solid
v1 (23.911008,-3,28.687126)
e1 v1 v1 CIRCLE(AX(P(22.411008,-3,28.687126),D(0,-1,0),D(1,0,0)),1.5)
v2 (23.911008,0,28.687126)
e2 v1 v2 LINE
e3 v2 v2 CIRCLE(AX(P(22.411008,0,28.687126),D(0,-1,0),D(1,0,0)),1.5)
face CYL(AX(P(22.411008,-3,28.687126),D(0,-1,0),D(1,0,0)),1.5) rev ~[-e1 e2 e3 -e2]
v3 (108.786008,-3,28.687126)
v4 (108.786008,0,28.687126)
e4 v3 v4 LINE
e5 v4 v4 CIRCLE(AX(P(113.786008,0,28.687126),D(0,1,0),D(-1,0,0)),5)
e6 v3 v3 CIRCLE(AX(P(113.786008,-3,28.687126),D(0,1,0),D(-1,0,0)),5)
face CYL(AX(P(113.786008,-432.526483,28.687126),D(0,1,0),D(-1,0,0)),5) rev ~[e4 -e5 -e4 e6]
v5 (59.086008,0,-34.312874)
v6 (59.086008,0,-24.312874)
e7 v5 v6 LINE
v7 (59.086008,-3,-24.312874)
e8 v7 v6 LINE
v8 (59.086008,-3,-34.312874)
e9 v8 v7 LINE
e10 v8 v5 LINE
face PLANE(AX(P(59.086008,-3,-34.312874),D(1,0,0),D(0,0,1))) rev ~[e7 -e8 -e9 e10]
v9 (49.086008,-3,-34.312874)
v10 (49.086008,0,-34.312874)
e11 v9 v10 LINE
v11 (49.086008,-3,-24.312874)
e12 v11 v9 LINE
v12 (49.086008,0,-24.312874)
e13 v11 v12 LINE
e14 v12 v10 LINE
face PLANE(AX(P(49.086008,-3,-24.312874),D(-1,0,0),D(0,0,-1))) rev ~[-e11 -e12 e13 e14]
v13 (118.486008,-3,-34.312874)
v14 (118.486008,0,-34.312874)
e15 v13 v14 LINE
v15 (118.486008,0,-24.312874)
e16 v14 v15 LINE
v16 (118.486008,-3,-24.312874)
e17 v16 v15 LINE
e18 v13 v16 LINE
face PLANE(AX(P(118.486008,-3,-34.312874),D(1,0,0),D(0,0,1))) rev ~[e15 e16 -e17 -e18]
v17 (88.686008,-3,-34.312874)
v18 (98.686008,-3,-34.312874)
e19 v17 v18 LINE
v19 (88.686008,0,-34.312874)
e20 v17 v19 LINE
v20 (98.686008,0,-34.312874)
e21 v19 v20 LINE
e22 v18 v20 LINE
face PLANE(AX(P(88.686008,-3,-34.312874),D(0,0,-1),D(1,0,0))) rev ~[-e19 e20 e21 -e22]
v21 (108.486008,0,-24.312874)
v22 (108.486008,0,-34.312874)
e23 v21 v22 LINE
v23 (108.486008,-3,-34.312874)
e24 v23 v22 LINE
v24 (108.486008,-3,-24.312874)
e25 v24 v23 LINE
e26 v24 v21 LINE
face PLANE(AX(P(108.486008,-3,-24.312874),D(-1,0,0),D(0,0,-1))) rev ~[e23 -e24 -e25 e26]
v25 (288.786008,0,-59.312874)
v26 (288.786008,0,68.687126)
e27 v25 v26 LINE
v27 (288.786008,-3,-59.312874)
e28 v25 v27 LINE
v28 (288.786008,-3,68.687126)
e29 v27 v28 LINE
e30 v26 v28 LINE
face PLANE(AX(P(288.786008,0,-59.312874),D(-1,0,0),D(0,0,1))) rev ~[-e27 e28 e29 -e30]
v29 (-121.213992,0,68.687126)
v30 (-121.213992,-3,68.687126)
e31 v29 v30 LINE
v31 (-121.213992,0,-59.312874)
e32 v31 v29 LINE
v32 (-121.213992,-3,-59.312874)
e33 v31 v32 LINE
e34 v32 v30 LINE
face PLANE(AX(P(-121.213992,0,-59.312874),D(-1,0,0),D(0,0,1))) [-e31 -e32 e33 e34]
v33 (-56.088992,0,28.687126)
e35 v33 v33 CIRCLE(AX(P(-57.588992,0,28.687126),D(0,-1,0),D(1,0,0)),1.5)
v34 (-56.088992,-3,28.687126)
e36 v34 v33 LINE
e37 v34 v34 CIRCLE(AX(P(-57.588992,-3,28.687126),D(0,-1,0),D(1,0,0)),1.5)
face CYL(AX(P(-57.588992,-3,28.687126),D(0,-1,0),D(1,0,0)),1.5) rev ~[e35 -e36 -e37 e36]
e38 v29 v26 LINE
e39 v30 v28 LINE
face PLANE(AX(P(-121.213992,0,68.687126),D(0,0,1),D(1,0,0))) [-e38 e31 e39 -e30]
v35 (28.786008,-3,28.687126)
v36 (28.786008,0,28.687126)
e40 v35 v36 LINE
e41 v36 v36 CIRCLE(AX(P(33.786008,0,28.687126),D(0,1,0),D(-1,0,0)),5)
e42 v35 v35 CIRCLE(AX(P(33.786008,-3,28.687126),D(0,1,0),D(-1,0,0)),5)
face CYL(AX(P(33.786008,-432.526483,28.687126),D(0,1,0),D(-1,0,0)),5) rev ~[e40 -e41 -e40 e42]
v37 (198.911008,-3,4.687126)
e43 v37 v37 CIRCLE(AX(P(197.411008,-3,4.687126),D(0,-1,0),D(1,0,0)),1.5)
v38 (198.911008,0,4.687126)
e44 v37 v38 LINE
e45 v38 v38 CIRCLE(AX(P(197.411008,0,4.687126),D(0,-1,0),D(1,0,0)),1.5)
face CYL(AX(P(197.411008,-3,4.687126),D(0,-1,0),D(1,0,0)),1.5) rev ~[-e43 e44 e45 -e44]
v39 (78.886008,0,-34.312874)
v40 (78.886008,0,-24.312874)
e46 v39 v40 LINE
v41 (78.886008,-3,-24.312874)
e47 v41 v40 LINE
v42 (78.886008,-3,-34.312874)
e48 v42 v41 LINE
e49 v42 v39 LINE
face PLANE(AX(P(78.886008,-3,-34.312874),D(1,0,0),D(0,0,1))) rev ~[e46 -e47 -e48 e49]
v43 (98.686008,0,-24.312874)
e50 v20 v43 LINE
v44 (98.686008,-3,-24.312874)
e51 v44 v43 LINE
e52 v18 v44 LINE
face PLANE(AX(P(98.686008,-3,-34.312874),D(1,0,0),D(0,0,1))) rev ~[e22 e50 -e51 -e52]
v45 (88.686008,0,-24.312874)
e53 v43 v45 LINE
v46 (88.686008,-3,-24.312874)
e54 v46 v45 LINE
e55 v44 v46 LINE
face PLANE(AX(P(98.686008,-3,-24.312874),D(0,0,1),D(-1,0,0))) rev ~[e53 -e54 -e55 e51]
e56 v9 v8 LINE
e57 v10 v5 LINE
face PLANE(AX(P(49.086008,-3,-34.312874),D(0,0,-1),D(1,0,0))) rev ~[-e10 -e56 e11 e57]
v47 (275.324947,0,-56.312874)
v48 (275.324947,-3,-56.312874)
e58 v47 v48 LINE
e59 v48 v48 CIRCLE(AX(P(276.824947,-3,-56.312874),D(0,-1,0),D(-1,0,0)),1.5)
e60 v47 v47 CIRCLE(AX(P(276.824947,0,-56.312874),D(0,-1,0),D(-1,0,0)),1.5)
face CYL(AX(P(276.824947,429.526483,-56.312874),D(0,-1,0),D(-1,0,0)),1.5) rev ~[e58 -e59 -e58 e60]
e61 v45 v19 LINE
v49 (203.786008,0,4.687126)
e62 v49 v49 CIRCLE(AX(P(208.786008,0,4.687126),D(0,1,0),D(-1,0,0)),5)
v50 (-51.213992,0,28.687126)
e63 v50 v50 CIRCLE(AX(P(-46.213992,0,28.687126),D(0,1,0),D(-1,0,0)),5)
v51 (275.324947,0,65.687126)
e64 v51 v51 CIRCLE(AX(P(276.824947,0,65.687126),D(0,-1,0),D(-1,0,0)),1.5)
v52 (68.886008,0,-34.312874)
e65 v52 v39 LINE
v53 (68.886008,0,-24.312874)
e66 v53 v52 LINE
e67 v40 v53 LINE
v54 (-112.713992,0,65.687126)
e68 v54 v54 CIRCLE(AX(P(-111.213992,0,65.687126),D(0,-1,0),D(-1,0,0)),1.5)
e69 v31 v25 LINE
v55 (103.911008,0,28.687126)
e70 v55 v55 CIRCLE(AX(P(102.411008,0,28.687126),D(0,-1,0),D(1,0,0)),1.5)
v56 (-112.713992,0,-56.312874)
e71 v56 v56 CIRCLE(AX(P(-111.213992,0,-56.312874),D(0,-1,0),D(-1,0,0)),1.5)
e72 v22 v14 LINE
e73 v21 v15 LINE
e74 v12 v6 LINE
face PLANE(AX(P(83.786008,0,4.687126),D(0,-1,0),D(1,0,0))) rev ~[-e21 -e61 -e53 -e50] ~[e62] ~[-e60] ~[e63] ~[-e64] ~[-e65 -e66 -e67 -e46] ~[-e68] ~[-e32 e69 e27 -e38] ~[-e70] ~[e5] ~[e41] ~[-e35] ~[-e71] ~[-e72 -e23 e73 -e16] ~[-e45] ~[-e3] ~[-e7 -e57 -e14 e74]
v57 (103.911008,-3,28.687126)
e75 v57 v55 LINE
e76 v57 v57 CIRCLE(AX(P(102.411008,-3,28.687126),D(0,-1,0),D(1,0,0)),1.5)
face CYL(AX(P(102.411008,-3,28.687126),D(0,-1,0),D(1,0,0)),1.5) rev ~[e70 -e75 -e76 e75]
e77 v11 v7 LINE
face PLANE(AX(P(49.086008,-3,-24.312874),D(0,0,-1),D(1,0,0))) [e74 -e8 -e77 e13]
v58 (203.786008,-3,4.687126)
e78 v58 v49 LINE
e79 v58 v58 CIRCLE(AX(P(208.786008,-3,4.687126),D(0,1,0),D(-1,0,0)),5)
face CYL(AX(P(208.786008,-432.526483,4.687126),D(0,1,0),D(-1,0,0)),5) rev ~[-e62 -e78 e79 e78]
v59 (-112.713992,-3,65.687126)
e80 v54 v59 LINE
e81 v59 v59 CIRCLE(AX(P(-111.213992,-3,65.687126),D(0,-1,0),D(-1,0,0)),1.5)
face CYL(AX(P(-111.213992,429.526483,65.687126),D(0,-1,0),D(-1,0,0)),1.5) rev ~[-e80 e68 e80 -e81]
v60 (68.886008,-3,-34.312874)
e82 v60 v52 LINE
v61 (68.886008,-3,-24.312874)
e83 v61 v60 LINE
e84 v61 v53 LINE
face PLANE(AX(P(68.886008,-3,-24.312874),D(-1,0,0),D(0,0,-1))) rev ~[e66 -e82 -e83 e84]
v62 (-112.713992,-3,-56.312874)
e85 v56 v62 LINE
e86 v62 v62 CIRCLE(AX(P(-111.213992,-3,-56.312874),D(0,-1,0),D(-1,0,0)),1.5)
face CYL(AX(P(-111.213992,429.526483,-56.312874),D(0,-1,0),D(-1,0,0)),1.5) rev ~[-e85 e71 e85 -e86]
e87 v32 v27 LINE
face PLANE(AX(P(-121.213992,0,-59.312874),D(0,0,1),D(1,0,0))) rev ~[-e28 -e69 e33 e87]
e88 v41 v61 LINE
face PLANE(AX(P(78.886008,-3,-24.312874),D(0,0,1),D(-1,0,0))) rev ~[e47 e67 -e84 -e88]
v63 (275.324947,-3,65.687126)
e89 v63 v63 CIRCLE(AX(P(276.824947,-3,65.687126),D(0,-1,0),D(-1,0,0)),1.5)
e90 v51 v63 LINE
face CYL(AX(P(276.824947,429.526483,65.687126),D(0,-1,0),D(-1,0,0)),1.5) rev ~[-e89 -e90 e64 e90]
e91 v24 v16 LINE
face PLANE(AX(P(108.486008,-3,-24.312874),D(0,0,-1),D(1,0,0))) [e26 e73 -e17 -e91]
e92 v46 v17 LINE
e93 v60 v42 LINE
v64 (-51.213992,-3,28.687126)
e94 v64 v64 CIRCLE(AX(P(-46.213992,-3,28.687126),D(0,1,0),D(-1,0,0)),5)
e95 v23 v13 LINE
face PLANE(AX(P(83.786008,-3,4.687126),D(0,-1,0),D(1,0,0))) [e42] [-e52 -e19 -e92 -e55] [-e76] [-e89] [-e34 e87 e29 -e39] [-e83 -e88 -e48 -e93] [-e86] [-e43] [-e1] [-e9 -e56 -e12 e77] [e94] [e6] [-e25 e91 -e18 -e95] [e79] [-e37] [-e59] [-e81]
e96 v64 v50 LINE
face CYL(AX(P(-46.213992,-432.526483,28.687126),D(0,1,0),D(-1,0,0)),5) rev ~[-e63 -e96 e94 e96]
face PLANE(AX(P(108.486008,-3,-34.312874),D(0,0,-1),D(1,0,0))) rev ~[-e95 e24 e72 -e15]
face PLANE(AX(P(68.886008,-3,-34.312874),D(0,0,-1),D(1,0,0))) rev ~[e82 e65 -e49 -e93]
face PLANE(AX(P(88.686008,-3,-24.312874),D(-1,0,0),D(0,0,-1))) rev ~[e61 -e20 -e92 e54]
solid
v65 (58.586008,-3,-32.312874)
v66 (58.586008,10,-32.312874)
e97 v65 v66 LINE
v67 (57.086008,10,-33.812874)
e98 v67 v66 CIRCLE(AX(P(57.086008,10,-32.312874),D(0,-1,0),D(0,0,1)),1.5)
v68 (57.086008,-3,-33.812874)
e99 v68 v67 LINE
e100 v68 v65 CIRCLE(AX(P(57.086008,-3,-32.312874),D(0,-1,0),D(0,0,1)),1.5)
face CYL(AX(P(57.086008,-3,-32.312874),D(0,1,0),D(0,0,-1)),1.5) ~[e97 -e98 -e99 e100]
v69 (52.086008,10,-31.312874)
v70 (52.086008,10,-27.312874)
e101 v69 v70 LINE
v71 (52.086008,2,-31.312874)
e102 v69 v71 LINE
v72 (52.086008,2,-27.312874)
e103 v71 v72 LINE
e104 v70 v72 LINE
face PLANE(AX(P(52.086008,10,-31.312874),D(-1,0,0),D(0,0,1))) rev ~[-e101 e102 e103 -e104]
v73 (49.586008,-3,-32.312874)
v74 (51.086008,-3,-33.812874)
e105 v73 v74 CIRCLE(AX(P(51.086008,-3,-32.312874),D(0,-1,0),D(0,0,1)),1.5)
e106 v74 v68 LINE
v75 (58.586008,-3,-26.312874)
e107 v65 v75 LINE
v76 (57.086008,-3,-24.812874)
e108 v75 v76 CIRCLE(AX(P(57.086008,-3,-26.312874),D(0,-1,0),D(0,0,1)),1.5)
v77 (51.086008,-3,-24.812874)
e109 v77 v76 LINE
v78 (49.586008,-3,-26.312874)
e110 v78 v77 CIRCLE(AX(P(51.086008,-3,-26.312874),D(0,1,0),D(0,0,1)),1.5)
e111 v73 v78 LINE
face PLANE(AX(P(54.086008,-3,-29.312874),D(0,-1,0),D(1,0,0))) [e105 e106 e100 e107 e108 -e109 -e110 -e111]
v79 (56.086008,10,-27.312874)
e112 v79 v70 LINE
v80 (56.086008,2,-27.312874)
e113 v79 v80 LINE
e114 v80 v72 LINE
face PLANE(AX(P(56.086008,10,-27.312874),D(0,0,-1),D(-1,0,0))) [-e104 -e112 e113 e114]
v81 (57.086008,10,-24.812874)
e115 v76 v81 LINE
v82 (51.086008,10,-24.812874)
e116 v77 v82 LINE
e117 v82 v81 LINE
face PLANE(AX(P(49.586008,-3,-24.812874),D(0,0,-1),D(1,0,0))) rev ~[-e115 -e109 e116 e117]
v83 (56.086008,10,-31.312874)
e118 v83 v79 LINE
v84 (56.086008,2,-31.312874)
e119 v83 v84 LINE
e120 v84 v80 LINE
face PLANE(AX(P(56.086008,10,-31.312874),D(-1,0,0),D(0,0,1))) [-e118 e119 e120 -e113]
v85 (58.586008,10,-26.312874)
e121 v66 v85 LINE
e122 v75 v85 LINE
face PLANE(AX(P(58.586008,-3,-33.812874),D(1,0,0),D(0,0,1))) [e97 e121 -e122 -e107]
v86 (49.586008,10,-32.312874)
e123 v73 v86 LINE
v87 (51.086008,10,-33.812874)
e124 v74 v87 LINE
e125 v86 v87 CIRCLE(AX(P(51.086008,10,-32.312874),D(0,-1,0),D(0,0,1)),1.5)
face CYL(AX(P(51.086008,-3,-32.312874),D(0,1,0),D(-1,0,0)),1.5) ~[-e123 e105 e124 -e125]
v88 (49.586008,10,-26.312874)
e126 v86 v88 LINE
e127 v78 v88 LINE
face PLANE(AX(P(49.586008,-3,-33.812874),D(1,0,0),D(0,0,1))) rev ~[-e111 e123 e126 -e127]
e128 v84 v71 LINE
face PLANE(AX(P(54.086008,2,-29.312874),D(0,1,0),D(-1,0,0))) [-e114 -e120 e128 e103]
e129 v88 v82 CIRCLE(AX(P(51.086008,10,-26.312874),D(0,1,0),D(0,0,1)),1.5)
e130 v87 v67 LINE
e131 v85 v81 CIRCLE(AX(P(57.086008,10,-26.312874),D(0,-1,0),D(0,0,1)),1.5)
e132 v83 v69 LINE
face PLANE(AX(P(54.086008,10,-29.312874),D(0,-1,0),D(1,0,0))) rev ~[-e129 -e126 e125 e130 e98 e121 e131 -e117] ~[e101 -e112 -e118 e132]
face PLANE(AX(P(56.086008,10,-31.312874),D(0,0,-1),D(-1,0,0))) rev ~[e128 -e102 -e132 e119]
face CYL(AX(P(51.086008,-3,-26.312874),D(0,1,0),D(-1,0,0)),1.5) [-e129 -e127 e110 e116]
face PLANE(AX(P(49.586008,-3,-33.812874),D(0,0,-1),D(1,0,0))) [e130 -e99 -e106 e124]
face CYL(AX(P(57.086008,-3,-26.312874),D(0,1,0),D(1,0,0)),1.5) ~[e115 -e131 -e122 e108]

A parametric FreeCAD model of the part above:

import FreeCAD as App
import Part
import Sketcher

V = App.Vector


def edges_at(feature, points):
    """Names of the edges that pass closest to the given points."""
    edges = feature.Shape.Edges
    near = lambda p: min(range(len(edges)), key=lambda i: edges[i].distToShape(Part.Vertex(*p))[0])
    return sorted({f"Edge{near(p) + 1}" for p in points})


def add_polygon(sketch, points):
    """Adds a closed chain of lines whose ends are joined by coincident constraints."""
    first, n = sketch.GeometryCount, len(points)
    for a, b in zip(points, points[1:] + points[:1]):
        sketch.addGeometry(Part.LineSegment(App.Vector(*a, 0), App.Vector(*b, 0)), False)
    for i in range(n):
        sketch.addConstraint(Sketcher.Constraint("Coincident", first + i, 2, first + (i + 1) % n, 1))

doc = App.newDocument("Part")
body = doc.addObject("PartDesign::Body", "Body")

# Sketch on XZ plane
sketch1 = body.newObject("Sketcher::SketchObject", "Sketch")
sketch1.AttachmentSupport = (doc.getObject("XZ_Plane"), [""])
sketch1.MapMode = "FlatFace"
add_polygon(sketch1, [(-121, 69), (-121, -59), (289, -59), (289, 69)])  # lines 0-3
sketch1.addConstraint([
    Sketcher.Constraint("Vertical", 0),
    Sketcher.Constraint("Horizontal", 1),
    Sketcher.Constraint("Vertical", 2),
    Sketcher.Constraint("Horizontal", 3),
    Sketcher.Constraint("DistanceX", 1, 1, 1, 2, 410.0),
    Sketcher.Constraint("DistanceY", 0, 2, 0, 1, 128.0),
    Sketcher.Constraint("DistanceX", 0, 2, -1, 1, 121.213992),
    Sketcher.Constraint("DistanceY", 0, 2, -1, 1, 59.312874),
])
pad1 = body.newObject("PartDesign::Pad", "Pad")
pad1.Profile = sketch1
pad1.Length = 3

# Sketch on XZ plane
sketch2 = body.newObject("Sketcher::SketchObject", "Sketch001")
sketch2.AttachmentSupport = (doc.getObject("XZ_Plane"), [""])
sketch2.MapMode = "FlatFace"
sketch2.addGeometry([
    Part.Circle(V(-111.2, 65.7, 0), V(0, 0, 1), 1.5),
    Part.Circle(V(276.8, 65.7, 0), V(0, 0, 1), 1.5),
    Part.Circle(V(276.8, -56.3, 0), V(0, 0, 1), 1.5),
    Part.Circle(V(-111.2, -56.3, 0), V(0, 0, 1), 1.5),
], False)
sketch2.addConstraint([
    Sketcher.Constraint("Equal", 0, 1),
    Sketcher.Constraint("Equal", 1, 2),
    Sketcher.Constraint("Equal", 2, 3),
    Sketcher.Constraint("Horizontal", 0, 3, 1, 3),
    Sketcher.Constraint("Horizontal", 2, 3, 3, 3),
    Sketcher.Constraint("Vertical", 1, 3, 2, 3),
    Sketcher.Constraint("Vertical", 0, 3, 3, 3),
    Sketcher.Constraint("Diameter", 0, 3.0),
    Sketcher.Constraint("DistanceY", 2, 3, 1, 3, 122.0),
    Sketcher.Constraint("DistanceX", 0, 3, -1, 1, 111.213992),
    Sketcher.Constraint("DistanceX", 0, 3, 1, 3, 388.038939),
    Sketcher.Constraint("DistanceY", -1, 1, 0, 3, 65.687126),
])
doc.recompute()
hole = body.newObject("PartDesign::Hole", "Hole")
hole.Profile = sketch2
hole.ThreadType = "None"
hole.Diameter = 3
hole.DepthType = "ThroughAll"
hole.Reversed = True

# Sketch on XZ plane
sketch3 = body.newObject("Sketcher::SketchObject", "Sketch002")
sketch3.AttachmentSupport = (doc.getObject("XZ_Plane"), [""])
sketch3.MapMode = "FlatFace"
sketch3.AttachmentOffset = App.Placement(V(0, 0, 3), App.Rotation())
sketch3.addGeometry([
    Part.Circle(V(-46, 29, 0), V(0, 0, 1), 5),
    Part.Circle(V(34, 29, 0), V(0, 0, 1), 5),
    Part.Circle(V(114, 29, 0), V(0, 0, 1), 5),
    Part.Circle(V(209, 5, 0), V(0, 0, 1), 5),
], False)
sketch3.addConstraint([
    Sketcher.Constraint("Equal", 0, 1),
    Sketcher.Constraint("Equal", 1, 2),
    Sketcher.Constraint("Equal", 2, 3),
    Sketcher.Constraint("Horizontal", 0, 3, 1, 3),
    Sketcher.Constraint("Horizontal", 1, 3, 2, 3),
    Sketcher.Constraint("Diameter", 0, 10.0),
    Sketcher.Constraint("DistanceX", 0, 3, 1, 3, 80.0),
    Sketcher.Constraint("DistanceX", 1, 3, 2, 3, 80.0),
    Sketcher.Constraint("DistanceX", 2, 3, 3, 3, 95.0),
    Sketcher.Constraint("DistanceY", 3, 3, 2, 3, 24.0),
    Sketcher.Constraint("DistanceX", 0, 3, -1, 1, 46.213992),
    Sketcher.Constraint("DistanceY", -1, 1, 0, 3, 28.687126),
])
doc.recompute()
hole2 = body.newObject("PartDesign::Hole", "Hole001")
hole2.Profile = sketch3
hole2.ThreadType = "None"
hole2.Diameter = 10
hole2.DepthType = "ThroughAll"

# Sketch on XZ plane
sketch4 = body.newObject("Sketcher::SketchObject", "Sketch003")
sketch4.AttachmentSupport = (doc.getObject("XZ_Plane"), [""])
sketch4.MapMode = "FlatFace"
sketch4.AttachmentOffset = App.Placement(V(0, 0, 3), App.Rotation())
add_polygon(sketch4, [(49, -34), (59, -34), (59, -24), (49, -24)])  # lines 0-3
add_polygon(sketch4, [(79, -24), (69, -24), (69, -34), (79, -34)])  # lines 4-7
add_polygon(sketch4, [(89, -34), (99, -34), (99, -24), (89, -24)])  # lines 8-11
add_polygon(sketch4, [(108, -24), (108, -34), (118, -34), (118, -24)])  # lines 12-15
sketch4.addConstraint([
    Sketcher.Constraint("Horizontal", 0),
    Sketcher.Constraint("Vertical", 1),
    Sketcher.Constraint("Horizontal", 2),
    Sketcher.Constraint("Vertical", 3),
    Sketcher.Constraint("Horizontal", 4),
    Sketcher.Constraint("Vertical", 5),
    Sketcher.Constraint("Horizontal", 6),
    Sketcher.Constraint("Vertical", 7),
    Sketcher.Constraint("Horizontal", 8),
    Sketcher.Constraint("Vertical", 9),
    Sketcher.Constraint("Horizontal", 10),
    Sketcher.Constraint("Vertical", 11),
    Sketcher.Constraint("Vertical", 12),
    Sketcher.Constraint("Horizontal", 13),
    Sketcher.Constraint("Vertical", 14),
    Sketcher.Constraint("Horizontal", 15),
    Sketcher.Constraint("Horizontal", 2, 2, 4, 2),
    Sketcher.Constraint("Horizontal", 3, 2, 5, 2),
    Sketcher.Constraint("Horizontal", 6, 2, 8, 2),
    Sketcher.Constraint("Horizontal", 7, 2, 9, 2),
    Sketcher.Constraint("Horizontal", 11, 2, 12, 2),
    Sketcher.Constraint("Horizontal", 10, 2, 14, 2),
    Sketcher.Constraint("Equal", 2, 4),
    Sketcher.Constraint("Equal", 6, 8),
    Sketcher.Constraint("Equal", 10, 13),
    Sketcher.Constraint("Equal", 15, 1),
    Sketcher.Constraint("DistanceX", 0, 1, 0, 2, 10.0),
    Sketcher.Constraint("DistanceX", 1, 2, 4, 2, 9.8),
    Sketcher.Constraint("DistanceX", 6, 2, 8, 2, 19.8),
    Sketcher.Constraint("DistanceX", 8, 2, 12, 2, 9.8),
    Sketcher.Constraint("DistanceX", -1, 1, 0, 2, 59.086008),
    Sketcher.Constraint("DistanceY", 0, 2, -1, 1, 34.312874),
])
pocket1 = body.newObject("PartDesign::Pocket", "Pocket")
pocket1.Profile = sketch4
pocket1.Type = "ThroughAll"

# Sketch on XZ plane
sketch5 = body.newObject("Sketcher::SketchObject", "Sketch004")
sketch5.AttachmentSupport = (doc.getObject("XZ_Plane"), [""])
sketch5.MapMode = "FlatFace"
sketch5.AttachmentOffset = App.Placement(V(0, 0, 3), App.Rotation())
sketch5.addGeometry([
    Part.Circle(V(-57.6, 28.7, 0), V(0, 0, 1), 1.5),
    Part.Circle(V(22.4, 28.7, 0), V(0, 0, 1), 1.5),
    Part.Circle(V(102.4, 28.7, 0), V(0, 0, 1), 1.5),
    Part.Circle(V(197.4, 4.7, 0), V(0, 0, 1), 1.5),
], False)
sketch5.addConstraint([
    Sketcher.Constraint("Equal", 0, 1),
    Sketcher.Constraint("Equal", 1, 2),
    Sketcher.Constraint("Equal", 2, 3),
    Sketcher.Constraint("Horizontal", 0, 3, 1, 3),
    Sketcher.Constraint("Horizontal", 1, 3, 2, 3),
    Sketcher.Constraint("Diameter", 0, 3.0),
    Sketcher.Constraint("DistanceX", 0, 3, 1, 3, 80.0),
    Sketcher.Constraint("DistanceX", 1, 3, 2, 3, 80.0),
    Sketcher.Constraint("DistanceX", 2, 3, 3, 3, 95.0),
    Sketcher.Constraint("DistanceY", 3, 3, 2, 3, 24.0),
    Sketcher.Constraint("DistanceX", 0, 3, -1, 1, 57.588992),
    Sketcher.Constraint("DistanceY", -1, 1, 0, 3, 28.687126),
])
pocket2 = body.newObject("PartDesign::Pocket", "Pocket001")
pocket2.Profile = sketch5
pocket2.Type = "ThroughAll"
body2 = doc.addObject("PartDesign::Body", "Body001")

# Sketch on XZ plane
sketch6 = body2.newObject("Sketcher::SketchObject", "Sketch005")
sketch6.AttachmentSupport = (doc.getObject("XZ_Plane001"), [""])
sketch6.MapMode = "FlatFace"
sketch6.AttachmentOffset = App.Placement(V(0, 0, 3), App.Rotation())
add_polygon(sketch6, [(50, -25), (50, -34), (59, -34), (59, -25)])  # lines 0-3
sketch6.addConstraint([
    Sketcher.Constraint("Vertical", 0),
    Sketcher.Constraint("Horizontal", 1),
    Sketcher.Constraint("Vertical", 2),
    Sketcher.Constraint("Horizontal", 3),
    Sketcher.Constraint("Equal", 3, 0),
    Sketcher.Constraint("DistanceX", 1, 1, 1, 2, 9.0),
    Sketcher.Constraint("DistanceX", -1, 1, 0, 2, 49.586008),
    Sketcher.Constraint("DistanceY", 0, 2, -1, 1, 33.812874),
])
pad2 = body2.newObject("PartDesign::Pad", "Pad001")
pad2.Profile = sketch6
pad2.Length = 13
pad2.Reversed = True
doc.recompute()

fillet = body2.newObject("PartDesign::Fillet", "Fillet")
fillet.Base = (pad2, edges_at(pad2, [
    (58.586, 3.5, -24.813),
    (49.586, 3.5, -24.813),
    (58.586, 3.5, -33.813),
    (49.586, 3.5, -33.813),
]))
fillet.Radius = 1.5

# Sketch on XZ plane
sketch7 = body2.newObject("Sketcher::SketchObject", "Sketch006")
sketch7.AttachmentSupport = (doc.getObject("XZ_Plane001"), [""])
sketch7.MapMode = "FlatFace"
sketch7.AttachmentOffset = App.Placement(V(0, 0, -10), App.Rotation())
add_polygon(sketch7, [(56.1, -27.3), (56.1, -31.3), (52.1, -31.3), (52.1, -27.3)])  # lines 0-3
sketch7.addConstraint([
    Sketcher.Constraint("Vertical", 0),
    Sketcher.Constraint("Horizontal", 1),
    Sketcher.Constraint("Vertical", 2),
    Sketcher.Constraint("Horizontal", 3),
    Sketcher.Constraint("Equal", 3, 0),
    Sketcher.Constraint("DistanceX", 1, 2, 1, 1, 4.0),
    Sketcher.Constraint("DistanceX", -1, 1, 0, 2, 56.086008),
    Sketcher.Constraint("DistanceY", 0, 2, -1, 1, 31.312874),
])
pocket3 = body2.newObject("PartDesign::Pocket", "Pocket002")
pocket3.Profile = sketch7
pocket3.Length = 8
pocket3.Reversed = True

doc.recompute()
